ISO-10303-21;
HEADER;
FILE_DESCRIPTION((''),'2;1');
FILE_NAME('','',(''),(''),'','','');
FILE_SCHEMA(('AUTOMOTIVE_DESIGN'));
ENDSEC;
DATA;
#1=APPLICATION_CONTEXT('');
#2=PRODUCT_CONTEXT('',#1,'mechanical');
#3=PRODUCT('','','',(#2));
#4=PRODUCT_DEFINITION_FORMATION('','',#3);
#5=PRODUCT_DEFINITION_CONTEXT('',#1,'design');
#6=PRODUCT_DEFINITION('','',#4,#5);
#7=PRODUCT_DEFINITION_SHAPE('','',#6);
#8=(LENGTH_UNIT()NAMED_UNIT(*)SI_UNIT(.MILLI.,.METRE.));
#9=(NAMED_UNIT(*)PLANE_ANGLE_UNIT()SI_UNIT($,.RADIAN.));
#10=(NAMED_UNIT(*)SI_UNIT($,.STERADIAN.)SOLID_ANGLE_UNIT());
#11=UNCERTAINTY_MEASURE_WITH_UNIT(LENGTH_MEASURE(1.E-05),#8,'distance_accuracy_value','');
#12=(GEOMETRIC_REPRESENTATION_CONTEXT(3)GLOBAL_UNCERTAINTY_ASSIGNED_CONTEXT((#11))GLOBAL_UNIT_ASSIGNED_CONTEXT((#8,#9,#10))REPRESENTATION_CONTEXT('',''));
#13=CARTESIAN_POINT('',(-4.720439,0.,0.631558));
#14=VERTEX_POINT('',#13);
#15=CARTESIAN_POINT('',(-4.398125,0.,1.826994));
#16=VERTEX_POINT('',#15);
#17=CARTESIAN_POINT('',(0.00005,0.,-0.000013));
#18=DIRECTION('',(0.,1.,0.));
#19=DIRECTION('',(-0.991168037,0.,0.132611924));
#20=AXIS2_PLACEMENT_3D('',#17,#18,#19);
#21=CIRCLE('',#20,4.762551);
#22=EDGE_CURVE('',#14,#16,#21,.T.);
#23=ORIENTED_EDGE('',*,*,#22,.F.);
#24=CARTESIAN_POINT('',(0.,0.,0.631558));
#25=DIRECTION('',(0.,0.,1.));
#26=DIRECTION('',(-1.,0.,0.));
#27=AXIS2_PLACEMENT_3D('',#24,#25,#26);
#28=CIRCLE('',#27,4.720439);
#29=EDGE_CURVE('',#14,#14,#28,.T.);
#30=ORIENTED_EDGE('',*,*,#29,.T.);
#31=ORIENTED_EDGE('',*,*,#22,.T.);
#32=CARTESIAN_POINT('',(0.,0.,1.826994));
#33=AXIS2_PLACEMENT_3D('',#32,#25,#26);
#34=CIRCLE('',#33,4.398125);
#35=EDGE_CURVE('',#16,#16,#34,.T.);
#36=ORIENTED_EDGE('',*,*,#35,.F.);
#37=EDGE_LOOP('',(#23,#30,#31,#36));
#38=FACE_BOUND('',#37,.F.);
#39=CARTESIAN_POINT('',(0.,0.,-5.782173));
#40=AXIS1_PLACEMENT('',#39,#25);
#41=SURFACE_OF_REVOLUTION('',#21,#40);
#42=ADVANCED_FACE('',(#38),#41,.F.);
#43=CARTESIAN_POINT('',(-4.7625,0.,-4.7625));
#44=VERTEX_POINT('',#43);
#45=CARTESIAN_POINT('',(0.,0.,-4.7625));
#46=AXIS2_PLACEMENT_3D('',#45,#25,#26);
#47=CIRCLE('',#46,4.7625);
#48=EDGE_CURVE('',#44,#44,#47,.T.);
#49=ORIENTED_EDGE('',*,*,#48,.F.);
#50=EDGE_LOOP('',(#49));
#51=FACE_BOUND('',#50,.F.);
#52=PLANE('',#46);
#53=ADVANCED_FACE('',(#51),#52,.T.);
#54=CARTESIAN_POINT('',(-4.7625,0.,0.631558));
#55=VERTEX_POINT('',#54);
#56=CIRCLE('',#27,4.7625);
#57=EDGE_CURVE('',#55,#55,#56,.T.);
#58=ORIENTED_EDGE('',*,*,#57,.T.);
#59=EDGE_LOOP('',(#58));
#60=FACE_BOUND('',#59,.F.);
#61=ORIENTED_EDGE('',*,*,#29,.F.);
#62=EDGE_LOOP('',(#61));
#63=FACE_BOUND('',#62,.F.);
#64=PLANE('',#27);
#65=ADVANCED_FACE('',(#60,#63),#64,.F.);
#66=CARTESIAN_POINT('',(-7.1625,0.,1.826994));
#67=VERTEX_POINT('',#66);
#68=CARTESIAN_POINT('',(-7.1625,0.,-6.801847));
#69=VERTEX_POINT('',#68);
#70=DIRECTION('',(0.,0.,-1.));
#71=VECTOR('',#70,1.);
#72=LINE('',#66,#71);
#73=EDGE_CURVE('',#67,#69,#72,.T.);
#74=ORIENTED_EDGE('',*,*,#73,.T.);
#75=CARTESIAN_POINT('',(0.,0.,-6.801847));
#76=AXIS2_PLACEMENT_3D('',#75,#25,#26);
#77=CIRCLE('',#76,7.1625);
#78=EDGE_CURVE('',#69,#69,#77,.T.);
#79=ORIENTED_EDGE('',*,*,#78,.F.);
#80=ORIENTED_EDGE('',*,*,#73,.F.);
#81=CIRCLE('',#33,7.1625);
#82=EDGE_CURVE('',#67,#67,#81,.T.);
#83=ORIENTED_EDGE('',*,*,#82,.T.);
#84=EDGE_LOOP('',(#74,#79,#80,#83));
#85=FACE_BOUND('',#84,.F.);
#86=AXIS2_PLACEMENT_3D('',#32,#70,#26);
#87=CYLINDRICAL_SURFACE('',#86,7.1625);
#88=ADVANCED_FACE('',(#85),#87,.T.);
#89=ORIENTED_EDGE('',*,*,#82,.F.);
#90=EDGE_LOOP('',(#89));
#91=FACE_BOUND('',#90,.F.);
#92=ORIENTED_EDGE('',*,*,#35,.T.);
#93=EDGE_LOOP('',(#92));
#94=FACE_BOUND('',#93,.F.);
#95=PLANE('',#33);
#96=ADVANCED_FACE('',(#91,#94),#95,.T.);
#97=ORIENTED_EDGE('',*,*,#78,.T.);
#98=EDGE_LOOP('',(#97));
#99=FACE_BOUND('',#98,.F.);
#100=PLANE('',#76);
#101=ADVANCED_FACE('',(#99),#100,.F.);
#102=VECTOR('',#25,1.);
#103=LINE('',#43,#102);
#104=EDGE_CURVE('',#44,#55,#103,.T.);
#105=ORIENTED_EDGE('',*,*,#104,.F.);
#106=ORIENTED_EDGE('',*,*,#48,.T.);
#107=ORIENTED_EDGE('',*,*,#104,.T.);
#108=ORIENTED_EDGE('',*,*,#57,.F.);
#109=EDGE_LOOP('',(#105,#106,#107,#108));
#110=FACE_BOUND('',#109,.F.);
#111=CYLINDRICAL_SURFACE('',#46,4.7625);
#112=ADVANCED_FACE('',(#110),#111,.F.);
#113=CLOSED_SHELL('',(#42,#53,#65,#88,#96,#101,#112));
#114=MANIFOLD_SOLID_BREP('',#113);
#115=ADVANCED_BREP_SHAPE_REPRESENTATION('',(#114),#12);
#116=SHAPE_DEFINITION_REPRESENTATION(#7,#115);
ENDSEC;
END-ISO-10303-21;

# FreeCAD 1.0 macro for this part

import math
import FreeCAD as App
import Part
import Sketcher

V = App.Vector
Q = App.Units.Quantity

doc = App.newDocument("Part")
body = doc.addObject("PartDesign::Body", "Body")

sketch1 = body.newObject("Sketcher::SketchObject", "Sketch")
sketch1.AttachmentSupport = (doc.getObject("XZ_Plane"), [""])
sketch1.MapMode = "FlatFace"
sketch1.addGeometry(Part.LineSegment(V(-7.162, 1.827, 0), V(-7.162, -6.802, 0)), False)
sketch1.addGeometry(Part.LineSegment(V(-7.162, -6.802, 0), V(0, -6.802, 0)), False)
sketch1.addGeometry(Part.LineSegment(V(0, -6.802, 0), V(0, -4.763, 0)), False)
sketch1.addGeometry(Part.LineSegment(V(0, -4.763, 0), V(-4.763, -4.763, 0)), False)
sketch1.addGeometry(Part.LineSegment(V(-4.763, -4.763, 0), V(-4.763, 0.632, 0)), False)
sketch1.addGeometry(Part.LineSegment(V(-4.763, 0.632, 0), V(-4.72, 0.632, 0)), False)
sketch1.addGeometry(Part.ArcOfCircle(Part.Circle(V(0, 0, 0), V(0, 0, 1), 4.763), math.radians(157.44), math.radians(172.38)), False)
sketch1.addGeometry(Part.LineSegment(V(-4.398, 1.827, 0), V(-7.162, 1.827, 0)), False)
sketch1.addConstraint(Sketcher.Constraint("Coincident", 0, 2, 1, 1))
sketch1.addConstraint(Sketcher.Constraint("Coincident", 1, 2, 2, 1))
sketch1.addConstraint(Sketcher.Constraint("Coincident", 2, 2, 3, 1))
sketch1.addConstraint(Sketcher.Constraint("Coincident", 3, 2, 4, 1))
sketch1.addConstraint(Sketcher.Constraint("Coincident", 4, 2, 5, 1))
sketch1.addConstraint(Sketcher.Constraint("Coincident", 5, 2, 6, 2))
sketch1.addConstraint(Sketcher.Constraint("Coincident", 6, 1, 7, 1))
sketch1.addConstraint(Sketcher.Constraint("Coincident", 7, 2, 0, 1))
sketch1.addConstraint(Sketcher.Constraint("Vertical", 0))
sketch1.addConstraint(Sketcher.Constraint("Horizontal", 1))
sketch1.addConstraint(Sketcher.Constraint("Vertical", 2))
sketch1.addConstraint(Sketcher.Constraint("Horizontal", 3))
sketch1.addConstraint(Sketcher.Constraint("Vertical", 4))
sketch1.addConstraint(Sketcher.Constraint("Horizontal", 5))
sketch1.addConstraint(Sketcher.Constraint("Horizontal", 7))
sketch1.addConstraint(Sketcher.Constraint("PointOnObject", 1, 2, -2))
sketch1.addConstraint(Sketcher.Constraint("DistanceX", 3, 2, 3, 1, Q("0.1875 in")))
sketch1.addConstraint(Sketcher.Constraint("DistanceY", 2, 2, -1, 1, Q("0.1875 in")))
sketch1.addConstraint(Sketcher.Constraint("Radius", 6, Q("4.762551 mm")))
sketch1.addConstraint(Sketcher.Constraint("DistanceX", 1, 1, 1, 2, Q("7.1625 mm")))
sketch1.addConstraint(Sketcher.Constraint("DistanceX", 5, 1, 5, 2, Q("0.042061 mm")))
sketch1.addConstraint(Sketcher.Constraint("DistanceY", 0, 2, 0, 1, Q("8.628841 mm")))
sketch1.addConstraint(Sketcher.Constraint("DistanceY", 4, 1, 4, 2, Q("5.394058 mm")))
sketch1.addConstraint(Sketcher.Constraint("DistanceX", 7, 2, 7, 1, Q("2.764375 mm")))
sketch1.addConstraint(Sketcher.Constraint("DistanceY", 2, 1, 2, 2, Q("2.039347 mm")))
revolution = body.newObject("PartDesign::Revolution", "Revolution")
revolution.Profile = sketch1
revolution.ReferenceAxis = (sketch1, ["V_Axis"])
revolution.Angle = 360

doc.recompute()
